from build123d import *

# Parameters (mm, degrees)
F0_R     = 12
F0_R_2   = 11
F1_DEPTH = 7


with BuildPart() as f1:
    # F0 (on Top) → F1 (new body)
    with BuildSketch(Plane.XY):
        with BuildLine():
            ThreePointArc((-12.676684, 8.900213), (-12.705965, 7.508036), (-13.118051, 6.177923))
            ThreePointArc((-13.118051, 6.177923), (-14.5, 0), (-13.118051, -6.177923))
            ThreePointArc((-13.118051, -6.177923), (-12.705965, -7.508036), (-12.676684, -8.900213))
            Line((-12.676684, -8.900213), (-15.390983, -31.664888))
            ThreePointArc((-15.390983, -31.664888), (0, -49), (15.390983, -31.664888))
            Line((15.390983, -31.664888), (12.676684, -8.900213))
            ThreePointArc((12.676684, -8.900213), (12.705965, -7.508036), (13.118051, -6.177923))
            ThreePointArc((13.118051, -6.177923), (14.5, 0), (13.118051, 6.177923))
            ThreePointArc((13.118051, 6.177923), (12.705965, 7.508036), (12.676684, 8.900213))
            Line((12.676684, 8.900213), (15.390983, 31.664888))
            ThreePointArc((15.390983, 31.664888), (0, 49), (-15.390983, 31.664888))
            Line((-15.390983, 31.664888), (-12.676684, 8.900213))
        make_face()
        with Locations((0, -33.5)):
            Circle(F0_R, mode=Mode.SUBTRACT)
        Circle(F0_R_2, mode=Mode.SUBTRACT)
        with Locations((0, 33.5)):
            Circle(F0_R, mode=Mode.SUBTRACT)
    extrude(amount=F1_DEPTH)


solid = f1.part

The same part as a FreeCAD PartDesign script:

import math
import FreeCAD as App
import Part
import Sketcher
from FreeCAD import Vector

doc = App.newDocument("Part")
body = doc.addObject("PartDesign::Body", "Body")

sketch1 = body.newObject("Sketcher::SketchObject", "Sketch")
sketch1.AttachmentSupport = (doc.getObject("XY_Plane"), [""])
sketch1.MapMode = "FlatFace"
sketch1.addGeometry(Part.ArcOfCircle(Part.Circle(Vector(-17.6, 8.3, 0), Vector(0, 0, 1), 5), math.radians(-25), math.radians(7)), False)
sketch1.addGeometry(Part.ArcOfCircle(Part.Circle(Vector(0, 0, 0), Vector(0, 0, 1), 14.5), math.radians(155), math.radians(205)), False)
sketch1.addGeometry(Part.ArcOfCircle(Part.Circle(Vector(-17.6, -8.3, 0), Vector(0, 0, 1), 5), math.radians(-7), math.radians(25)), False)
sketch1.addGeometry(Part.LineSegment(Vector(-12.7, -8.9, 0), Vector(-15.4, -31.7, 0)), False)
sketch1.addGeometry(Part.ArcOfCircle(Part.Circle(Vector(0, -33.5, 0), Vector(0, 0, 1), 15.5), math.radians(173), math.radians(367)), False)
sketch1.addGeometry(Part.LineSegment(Vector(15.4, -31.7, 0), Vector(12.7, -8.9, 0)), False)
sketch1.addGeometry(Part.ArcOfCircle(Part.Circle(Vector(17.6, -8.3, 0), Vector(0, 0, 1), 5), math.radians(155), math.radians(187)), False)
sketch1.addGeometry(Part.ArcOfCircle(Part.Circle(Vector(0, 0, 0), Vector(0, 0, 1), 14.5), math.radians(-25), math.radians(25)), False)
sketch1.addGeometry(Part.ArcOfCircle(Part.Circle(Vector(17.6, 8.3, 0), Vector(0, 0, 1), 5), math.radians(173), math.radians(205)), False)
sketch1.addGeometry(Part.LineSegment(Vector(12.7, 8.9, 0), Vector(15.4, 31.7, 0)), False)
sketch1.addGeometry(Part.ArcOfCircle(Part.Circle(Vector(0, 33.5, 0), Vector(0, 0, 1), 15.5), math.radians(-7), math.radians(187)), False)
sketch1.addGeometry(Part.LineSegment(Vector(-15.4, 31.7, 0), Vector(-12.7, 8.9, 0)), False)
sketch1.addGeometry(Part.Circle(Vector(0, -33.5, 0), Vector(0, 0, 1), 12), False)
sketch1.addGeometry(Part.Circle(Vector(0, 0, 0), Vector(0, 0, 1), 11), False)
sketch1.addGeometry(Part.Circle(Vector(0, 33.5, 0), Vector(0, 0, 1), 12), False)
sketch1.addConstraint(Sketcher.Constraint("Tangent", 0, 1, 1, 1))
sketch1.addConstraint(Sketcher.Constraint("Tangent", 1, 2, 2, 2))
sketch1.addConstraint(Sketcher.Constraint("Tangent", 2, 1, 3, 1))
sketch1.addConstraint(Sketcher.Constraint("Tangent", 3, 2, 4, 1))
sketch1.addConstraint(Sketcher.Constraint("Tangent", 4, 2, 5, 1))
sketch1.addConstraint(Sketcher.Constraint("Tangent", 5, 2, 6, 2))
sketch1.addConstraint(Sketcher.Constraint("Tangent", 6, 1, 7, 1))
sketch1.addConstraint(Sketcher.Constraint("Tangent", 7, 2, 8, 2))
sketch1.addConstraint(Sketcher.Constraint("Tangent", 8, 1, 9, 1))
sketch1.addConstraint(Sketcher.Constraint("Tangent", 9, 2, 10, 1))
sketch1.addConstraint(Sketcher.Constraint("Tangent", 10, 2, 11, 1))
sketch1.addConstraint(Sketcher.Constraint("Tangent", 11, 2, 0, 2))
sketch1.addConstraint(Sketcher.Constraint("Coincident", 1, 3, -1, 1))
sketch1.addConstraint(Sketcher.Constraint("Coincident", 7, 3, -1, 1))
sketch1.addConstraint(Sketcher.Constraint("Coincident", 13, 3, -1, 1))
sketch1.addConstraint(Sketcher.Constraint("Coincident", 12, 3, 4, 3))
sketch1.addConstraint(Sketcher.Constraint("Coincident", 14, 3, 10, 3))
sketch1.addConstraint(Sketcher.Constraint("Equal", 0, 2))
sketch1.addConstraint(Sketcher.Constraint("Equal", 2, 6))
sketch1.addConstraint(Sketcher.Constraint("Equal", 1, 7))
sketch1.addConstraint(Sketcher.Constraint("Equal", 6, 8))
sketch1.addConstraint(Sketcher.Constraint("Equal", 4, 10))
sketch1.addConstraint(Sketcher.Constraint("Equal", 12, 14))
sketch1.addConstraint(Sketcher.Constraint("Symmetric", 4, 3, 10, 3, -1, 1))
sketch1.addConstraint(Sketcher.Constraint("Symmetric", 3, 2, 4, 2, -2))
sketch1.addConstraint(Sketcher.Constraint("Parallel", 3, 9))
sketch1.addConstraint(Sketcher.Constraint("Parallel", 5, 11))
sketch1.addConstraint(Sketcher.Constraint("Diameter", 12, 24.0))
sketch1.addConstraint(Sketcher.Constraint("Diameter", 13, 22.0))
sketch1.addConstraint(Sketcher.Constraint("Radius", 1, 14.499998))
sketch1.addConstraint(Sketcher.Constraint("Radius", 4, 15.5))
sketch1.addConstraint(Sketcher.Constraint("DistanceY", 4, 3, -1, 1, 33.5))
sketch1.addConstraint(Sketcher.Constraint("Radius", 0, 4.999992))
sketch1.addConstraint(Sketcher.Constraint("DistanceX", 3, 2, 2, 1, 2.714299))
pad1 = body.newObject("PartDesign::Pad", "Pad")
pad1.Profile = sketch1
pad1.Length = 7

doc.recompute()
